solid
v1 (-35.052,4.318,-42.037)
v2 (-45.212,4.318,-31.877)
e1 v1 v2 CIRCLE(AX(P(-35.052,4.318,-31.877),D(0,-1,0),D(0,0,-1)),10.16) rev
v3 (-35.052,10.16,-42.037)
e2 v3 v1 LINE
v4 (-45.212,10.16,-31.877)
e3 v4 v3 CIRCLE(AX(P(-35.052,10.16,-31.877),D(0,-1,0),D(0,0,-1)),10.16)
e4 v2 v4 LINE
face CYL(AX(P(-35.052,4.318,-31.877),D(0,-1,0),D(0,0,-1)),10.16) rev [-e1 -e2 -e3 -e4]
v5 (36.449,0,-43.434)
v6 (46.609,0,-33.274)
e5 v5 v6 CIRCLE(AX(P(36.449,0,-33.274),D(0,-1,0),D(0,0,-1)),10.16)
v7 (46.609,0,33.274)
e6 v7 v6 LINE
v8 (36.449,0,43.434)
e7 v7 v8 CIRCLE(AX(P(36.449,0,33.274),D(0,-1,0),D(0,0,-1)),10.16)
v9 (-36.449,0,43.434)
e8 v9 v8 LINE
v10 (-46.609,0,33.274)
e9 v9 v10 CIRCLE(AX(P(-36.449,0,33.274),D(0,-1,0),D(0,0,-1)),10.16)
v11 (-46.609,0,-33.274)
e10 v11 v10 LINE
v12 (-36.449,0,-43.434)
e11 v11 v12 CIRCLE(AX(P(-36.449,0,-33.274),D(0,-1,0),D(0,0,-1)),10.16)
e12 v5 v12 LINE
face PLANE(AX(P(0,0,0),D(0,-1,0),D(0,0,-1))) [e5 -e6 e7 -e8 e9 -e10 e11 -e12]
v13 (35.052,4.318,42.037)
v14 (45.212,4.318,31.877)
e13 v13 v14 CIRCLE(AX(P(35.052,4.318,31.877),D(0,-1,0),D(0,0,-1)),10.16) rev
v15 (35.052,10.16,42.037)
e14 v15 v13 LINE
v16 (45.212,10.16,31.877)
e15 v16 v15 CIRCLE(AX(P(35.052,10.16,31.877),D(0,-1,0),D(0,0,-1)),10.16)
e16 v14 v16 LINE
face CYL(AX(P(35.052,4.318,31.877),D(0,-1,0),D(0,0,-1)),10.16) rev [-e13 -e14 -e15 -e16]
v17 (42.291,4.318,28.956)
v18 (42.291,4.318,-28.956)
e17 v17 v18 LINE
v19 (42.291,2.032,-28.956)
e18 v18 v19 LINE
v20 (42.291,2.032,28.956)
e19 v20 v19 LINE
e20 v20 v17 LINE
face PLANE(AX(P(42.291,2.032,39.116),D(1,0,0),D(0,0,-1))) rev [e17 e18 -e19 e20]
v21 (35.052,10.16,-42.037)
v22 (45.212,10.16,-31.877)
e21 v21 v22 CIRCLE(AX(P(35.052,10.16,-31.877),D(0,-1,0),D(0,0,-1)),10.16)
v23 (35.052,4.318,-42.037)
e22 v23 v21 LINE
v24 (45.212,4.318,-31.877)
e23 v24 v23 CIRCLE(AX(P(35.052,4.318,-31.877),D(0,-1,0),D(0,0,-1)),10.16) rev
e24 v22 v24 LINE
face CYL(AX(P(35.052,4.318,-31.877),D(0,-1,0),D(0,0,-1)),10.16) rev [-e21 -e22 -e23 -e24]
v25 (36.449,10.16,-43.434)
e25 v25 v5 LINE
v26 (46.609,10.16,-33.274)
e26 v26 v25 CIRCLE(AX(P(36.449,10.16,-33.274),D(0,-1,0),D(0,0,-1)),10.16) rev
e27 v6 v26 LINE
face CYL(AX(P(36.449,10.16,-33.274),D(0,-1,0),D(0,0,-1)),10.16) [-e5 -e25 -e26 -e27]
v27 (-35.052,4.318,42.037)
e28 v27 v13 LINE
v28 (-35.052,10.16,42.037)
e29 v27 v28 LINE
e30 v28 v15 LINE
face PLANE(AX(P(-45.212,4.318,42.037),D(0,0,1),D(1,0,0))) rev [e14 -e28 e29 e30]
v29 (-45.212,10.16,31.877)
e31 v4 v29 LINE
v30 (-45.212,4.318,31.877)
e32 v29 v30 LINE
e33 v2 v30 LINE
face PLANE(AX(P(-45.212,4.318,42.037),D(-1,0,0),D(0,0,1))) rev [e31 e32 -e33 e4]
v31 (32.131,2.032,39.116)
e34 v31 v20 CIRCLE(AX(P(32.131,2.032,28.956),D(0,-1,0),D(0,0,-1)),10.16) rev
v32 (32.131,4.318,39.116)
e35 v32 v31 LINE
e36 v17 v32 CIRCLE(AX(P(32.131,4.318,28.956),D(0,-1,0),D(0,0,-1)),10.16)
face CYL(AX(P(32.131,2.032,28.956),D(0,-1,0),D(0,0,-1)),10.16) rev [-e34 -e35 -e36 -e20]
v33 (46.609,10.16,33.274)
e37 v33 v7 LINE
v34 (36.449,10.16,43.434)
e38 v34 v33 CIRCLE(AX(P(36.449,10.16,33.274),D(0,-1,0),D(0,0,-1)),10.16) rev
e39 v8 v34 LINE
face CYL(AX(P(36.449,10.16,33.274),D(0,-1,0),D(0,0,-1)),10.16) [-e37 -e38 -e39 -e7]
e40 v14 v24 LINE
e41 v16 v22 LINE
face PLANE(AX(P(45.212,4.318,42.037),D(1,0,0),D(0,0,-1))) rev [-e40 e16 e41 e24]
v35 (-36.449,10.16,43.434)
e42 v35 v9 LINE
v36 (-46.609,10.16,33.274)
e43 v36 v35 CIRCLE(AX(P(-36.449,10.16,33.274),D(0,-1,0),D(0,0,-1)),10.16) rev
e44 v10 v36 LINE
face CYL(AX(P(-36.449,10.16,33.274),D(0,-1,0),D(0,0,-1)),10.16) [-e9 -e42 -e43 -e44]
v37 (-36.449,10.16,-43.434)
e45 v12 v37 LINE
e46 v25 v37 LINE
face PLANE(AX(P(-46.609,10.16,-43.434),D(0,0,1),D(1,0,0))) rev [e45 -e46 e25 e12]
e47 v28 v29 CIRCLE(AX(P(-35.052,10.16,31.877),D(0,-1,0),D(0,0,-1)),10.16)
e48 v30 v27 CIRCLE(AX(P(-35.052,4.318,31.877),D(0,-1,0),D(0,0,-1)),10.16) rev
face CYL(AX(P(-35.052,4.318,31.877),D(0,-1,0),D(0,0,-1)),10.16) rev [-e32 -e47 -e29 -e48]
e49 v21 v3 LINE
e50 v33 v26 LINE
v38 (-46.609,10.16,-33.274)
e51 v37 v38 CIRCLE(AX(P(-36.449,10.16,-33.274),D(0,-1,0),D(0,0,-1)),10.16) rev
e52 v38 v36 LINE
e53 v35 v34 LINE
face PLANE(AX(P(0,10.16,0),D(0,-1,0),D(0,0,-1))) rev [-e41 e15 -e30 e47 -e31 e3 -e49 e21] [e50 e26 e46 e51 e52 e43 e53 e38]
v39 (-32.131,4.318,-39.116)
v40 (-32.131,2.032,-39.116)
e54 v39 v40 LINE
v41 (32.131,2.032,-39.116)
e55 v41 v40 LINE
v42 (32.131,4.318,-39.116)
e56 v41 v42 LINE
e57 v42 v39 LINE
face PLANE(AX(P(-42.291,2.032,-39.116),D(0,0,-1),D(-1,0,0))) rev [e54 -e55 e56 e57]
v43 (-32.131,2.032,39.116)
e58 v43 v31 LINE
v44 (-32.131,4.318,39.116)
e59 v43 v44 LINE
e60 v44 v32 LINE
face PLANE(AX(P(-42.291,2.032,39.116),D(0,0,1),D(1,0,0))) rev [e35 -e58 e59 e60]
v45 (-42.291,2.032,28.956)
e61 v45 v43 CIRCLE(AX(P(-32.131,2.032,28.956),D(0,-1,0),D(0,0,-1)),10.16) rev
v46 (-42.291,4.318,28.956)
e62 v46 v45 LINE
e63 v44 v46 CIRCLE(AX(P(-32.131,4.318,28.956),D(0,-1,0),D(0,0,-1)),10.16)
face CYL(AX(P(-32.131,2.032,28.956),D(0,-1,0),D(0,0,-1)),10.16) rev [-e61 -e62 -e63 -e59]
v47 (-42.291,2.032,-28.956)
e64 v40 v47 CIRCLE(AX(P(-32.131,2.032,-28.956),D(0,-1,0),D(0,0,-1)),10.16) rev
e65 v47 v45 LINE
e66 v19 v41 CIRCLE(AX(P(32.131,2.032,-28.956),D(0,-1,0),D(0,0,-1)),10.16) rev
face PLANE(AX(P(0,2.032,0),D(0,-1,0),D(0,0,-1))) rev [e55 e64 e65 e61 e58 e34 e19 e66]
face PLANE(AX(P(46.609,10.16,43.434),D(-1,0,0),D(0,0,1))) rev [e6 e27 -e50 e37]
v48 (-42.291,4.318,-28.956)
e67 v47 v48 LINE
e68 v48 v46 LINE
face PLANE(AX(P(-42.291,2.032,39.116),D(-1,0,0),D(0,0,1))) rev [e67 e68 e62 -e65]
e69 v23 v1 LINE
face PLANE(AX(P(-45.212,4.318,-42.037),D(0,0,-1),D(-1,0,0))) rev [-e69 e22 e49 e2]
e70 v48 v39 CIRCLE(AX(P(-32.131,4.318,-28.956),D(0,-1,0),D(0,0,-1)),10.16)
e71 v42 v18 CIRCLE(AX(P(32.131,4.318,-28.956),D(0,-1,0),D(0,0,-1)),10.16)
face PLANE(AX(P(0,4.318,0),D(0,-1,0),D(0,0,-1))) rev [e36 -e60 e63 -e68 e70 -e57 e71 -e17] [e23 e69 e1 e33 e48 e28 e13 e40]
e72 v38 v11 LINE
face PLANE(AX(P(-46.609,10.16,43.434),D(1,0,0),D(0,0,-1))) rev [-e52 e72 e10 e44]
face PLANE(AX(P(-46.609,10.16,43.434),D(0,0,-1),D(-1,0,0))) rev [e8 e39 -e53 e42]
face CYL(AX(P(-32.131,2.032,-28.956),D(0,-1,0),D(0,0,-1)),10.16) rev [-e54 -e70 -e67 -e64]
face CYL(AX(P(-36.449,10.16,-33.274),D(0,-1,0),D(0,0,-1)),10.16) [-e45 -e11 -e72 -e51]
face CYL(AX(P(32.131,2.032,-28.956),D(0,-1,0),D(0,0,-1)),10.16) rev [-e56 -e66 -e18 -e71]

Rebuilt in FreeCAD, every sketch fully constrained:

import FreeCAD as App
import Part
import Sketcher
Q = App.Units.Quantity


def edges_at(feature, points):
    """Names of the edges that pass closest to the given points."""
    edges = feature.Shape.Edges
    near = lambda p: min(range(len(edges)), key=lambda i: edges[i].distToShape(Part.Vertex(*p))[0])
    return sorted({f"Edge{near(p) + 1}" for p in points})


def add_polygon(sketch, points):
    """Adds a closed chain of lines whose ends are joined by coincident constraints."""
    first, n = sketch.GeometryCount, len(points)
    for a, b in zip(points, points[1:] + points[:1]):
        sketch.addGeometry(Part.LineSegment(App.Vector(*a, 0), App.Vector(*b, 0)), False)
    for i in range(n):
        sketch.addConstraint(Sketcher.Constraint("Coincident", first + i, 2, first + (i + 1) % n, 1))

doc = App.newDocument("Part")
body = doc.addObject("PartDesign::Body", "Body")

# Sketch on XZ plane
sketch1 = body.newObject("Sketcher::SketchObject", "Sketch")
sketch1.AttachmentSupport = (doc.getObject("XZ_Plane"), [""])
sketch1.MapMode = "FlatFace"
add_polygon(sketch1, [(-47, -43), (-47, 43), (47, 43), (47, -43)])  # lines 0-3
sketch1.addConstraint([
    Sketcher.Constraint("Vertical", 0),
    Sketcher.Constraint("Horizontal", 1),
    Sketcher.Constraint("Vertical", 2),
    Sketcher.Constraint("Horizontal", 3),
    Sketcher.Constraint("Symmetric", 0, 2, 2, 2, -1, 1),
    Sketcher.Constraint("DistanceX", 1, 1, 1, 2, Q("3.67 in")),
    Sketcher.Constraint("DistanceY", 0, 1, 0, 2, Q("3.42 in")),
])
pad1 = body.newObject("PartDesign::Pad", "Pad")
pad1.Profile = sketch1
pad1.Length = Q("0.4 in")
pad1.Reversed = True

# Sketch on XZ plane
sketch2 = body.newObject("Sketcher::SketchObject", "Sketch001")
sketch2.AttachmentSupport = (doc.getObject("XZ_Plane"), [""])
sketch2.MapMode = "FlatFace"
sketch2.AttachmentOffset = App.Placement(App.Vector(0, 0, -0.4 * 25.4), App.Rotation())
add_polygon(sketch2, [(-45, -42), (-45, 42), (45, 42), (45, -42)])  # lines 0-3
sketch2.addConstraint([
    Sketcher.Constraint("Vertical", 0),
    Sketcher.Constraint("Horizontal", 1),
    Sketcher.Constraint("Vertical", 2),
    Sketcher.Constraint("Horizontal", 3),
    Sketcher.Constraint("Symmetric", 0, 2, 2, 2, -1, 1),
    Sketcher.Constraint("DistanceX", 1, 1, 1, 2, Q("3.56 in")),
    Sketcher.Constraint("DistanceY", 0, 1, 0, 2, Q("3.31 in")),
])
pocket1 = body.newObject("PartDesign::Pocket", "Pocket")
pocket1.Profile = sketch2
pocket1.Length = Q("0.23 in")
pocket1.Reversed = True

# Sketch on XZ plane
sketch3 = body.newObject("Sketcher::SketchObject", "Sketch002")
sketch3.AttachmentSupport = (doc.getObject("XZ_Plane"), [""])
sketch3.MapMode = "FlatFace"
sketch3.AttachmentOffset = App.Placement(App.Vector(0, 0, -0.17 * 25.4), App.Rotation())
add_polygon(sketch3, [(-42, -39), (-42, 39), (42, 39), (42, -39)])  # lines 0-3
sketch3.addConstraint([
    Sketcher.Constraint("Vertical", 0),
    Sketcher.Constraint("Horizontal", 1),
    Sketcher.Constraint("Vertical", 2),
    Sketcher.Constraint("Horizontal", 3),
    Sketcher.Constraint("Symmetric", 0, 2, 2, 2, -1, 1),
    Sketcher.Constraint("DistanceX", 1, 1, 1, 2, Q("3.33 in")),
    Sketcher.Constraint("DistanceY", 0, 1, 0, 2, Q("3.08 in")),
])
pocket2 = body.newObject("PartDesign::Pocket", "Pocket001")
pocket2.Profile = sketch3
pocket2.Length = Q("0.09 in")
pocket2.Reversed = True
doc.recompute()

fillet = body.newObject("PartDesign::Fillet", "Fillet")
fillet.Base = (pocket2, edges_at(pocket2, [
    (45.212, 7.239, -42.037),
    (45.212, 7.239, 42.037),
    (-45.212, 7.239, 42.037),
    (-45.212, 7.239, -42.037),
    (42.291, 3.175, -39.116),
    (42.291, 3.175, 39.116),
    (-42.291, 3.175, 39.116),
    (-42.291, 3.175, -39.116),
    (46.609, 5.08, 43.434),
    (-46.609, 5.08, 43.434),
    (-46.609, 5.08, -43.434),
    (46.609, 5.08, -43.434),
]))
fillet.Radius = Q("0.4 in")

doc.recompute()
